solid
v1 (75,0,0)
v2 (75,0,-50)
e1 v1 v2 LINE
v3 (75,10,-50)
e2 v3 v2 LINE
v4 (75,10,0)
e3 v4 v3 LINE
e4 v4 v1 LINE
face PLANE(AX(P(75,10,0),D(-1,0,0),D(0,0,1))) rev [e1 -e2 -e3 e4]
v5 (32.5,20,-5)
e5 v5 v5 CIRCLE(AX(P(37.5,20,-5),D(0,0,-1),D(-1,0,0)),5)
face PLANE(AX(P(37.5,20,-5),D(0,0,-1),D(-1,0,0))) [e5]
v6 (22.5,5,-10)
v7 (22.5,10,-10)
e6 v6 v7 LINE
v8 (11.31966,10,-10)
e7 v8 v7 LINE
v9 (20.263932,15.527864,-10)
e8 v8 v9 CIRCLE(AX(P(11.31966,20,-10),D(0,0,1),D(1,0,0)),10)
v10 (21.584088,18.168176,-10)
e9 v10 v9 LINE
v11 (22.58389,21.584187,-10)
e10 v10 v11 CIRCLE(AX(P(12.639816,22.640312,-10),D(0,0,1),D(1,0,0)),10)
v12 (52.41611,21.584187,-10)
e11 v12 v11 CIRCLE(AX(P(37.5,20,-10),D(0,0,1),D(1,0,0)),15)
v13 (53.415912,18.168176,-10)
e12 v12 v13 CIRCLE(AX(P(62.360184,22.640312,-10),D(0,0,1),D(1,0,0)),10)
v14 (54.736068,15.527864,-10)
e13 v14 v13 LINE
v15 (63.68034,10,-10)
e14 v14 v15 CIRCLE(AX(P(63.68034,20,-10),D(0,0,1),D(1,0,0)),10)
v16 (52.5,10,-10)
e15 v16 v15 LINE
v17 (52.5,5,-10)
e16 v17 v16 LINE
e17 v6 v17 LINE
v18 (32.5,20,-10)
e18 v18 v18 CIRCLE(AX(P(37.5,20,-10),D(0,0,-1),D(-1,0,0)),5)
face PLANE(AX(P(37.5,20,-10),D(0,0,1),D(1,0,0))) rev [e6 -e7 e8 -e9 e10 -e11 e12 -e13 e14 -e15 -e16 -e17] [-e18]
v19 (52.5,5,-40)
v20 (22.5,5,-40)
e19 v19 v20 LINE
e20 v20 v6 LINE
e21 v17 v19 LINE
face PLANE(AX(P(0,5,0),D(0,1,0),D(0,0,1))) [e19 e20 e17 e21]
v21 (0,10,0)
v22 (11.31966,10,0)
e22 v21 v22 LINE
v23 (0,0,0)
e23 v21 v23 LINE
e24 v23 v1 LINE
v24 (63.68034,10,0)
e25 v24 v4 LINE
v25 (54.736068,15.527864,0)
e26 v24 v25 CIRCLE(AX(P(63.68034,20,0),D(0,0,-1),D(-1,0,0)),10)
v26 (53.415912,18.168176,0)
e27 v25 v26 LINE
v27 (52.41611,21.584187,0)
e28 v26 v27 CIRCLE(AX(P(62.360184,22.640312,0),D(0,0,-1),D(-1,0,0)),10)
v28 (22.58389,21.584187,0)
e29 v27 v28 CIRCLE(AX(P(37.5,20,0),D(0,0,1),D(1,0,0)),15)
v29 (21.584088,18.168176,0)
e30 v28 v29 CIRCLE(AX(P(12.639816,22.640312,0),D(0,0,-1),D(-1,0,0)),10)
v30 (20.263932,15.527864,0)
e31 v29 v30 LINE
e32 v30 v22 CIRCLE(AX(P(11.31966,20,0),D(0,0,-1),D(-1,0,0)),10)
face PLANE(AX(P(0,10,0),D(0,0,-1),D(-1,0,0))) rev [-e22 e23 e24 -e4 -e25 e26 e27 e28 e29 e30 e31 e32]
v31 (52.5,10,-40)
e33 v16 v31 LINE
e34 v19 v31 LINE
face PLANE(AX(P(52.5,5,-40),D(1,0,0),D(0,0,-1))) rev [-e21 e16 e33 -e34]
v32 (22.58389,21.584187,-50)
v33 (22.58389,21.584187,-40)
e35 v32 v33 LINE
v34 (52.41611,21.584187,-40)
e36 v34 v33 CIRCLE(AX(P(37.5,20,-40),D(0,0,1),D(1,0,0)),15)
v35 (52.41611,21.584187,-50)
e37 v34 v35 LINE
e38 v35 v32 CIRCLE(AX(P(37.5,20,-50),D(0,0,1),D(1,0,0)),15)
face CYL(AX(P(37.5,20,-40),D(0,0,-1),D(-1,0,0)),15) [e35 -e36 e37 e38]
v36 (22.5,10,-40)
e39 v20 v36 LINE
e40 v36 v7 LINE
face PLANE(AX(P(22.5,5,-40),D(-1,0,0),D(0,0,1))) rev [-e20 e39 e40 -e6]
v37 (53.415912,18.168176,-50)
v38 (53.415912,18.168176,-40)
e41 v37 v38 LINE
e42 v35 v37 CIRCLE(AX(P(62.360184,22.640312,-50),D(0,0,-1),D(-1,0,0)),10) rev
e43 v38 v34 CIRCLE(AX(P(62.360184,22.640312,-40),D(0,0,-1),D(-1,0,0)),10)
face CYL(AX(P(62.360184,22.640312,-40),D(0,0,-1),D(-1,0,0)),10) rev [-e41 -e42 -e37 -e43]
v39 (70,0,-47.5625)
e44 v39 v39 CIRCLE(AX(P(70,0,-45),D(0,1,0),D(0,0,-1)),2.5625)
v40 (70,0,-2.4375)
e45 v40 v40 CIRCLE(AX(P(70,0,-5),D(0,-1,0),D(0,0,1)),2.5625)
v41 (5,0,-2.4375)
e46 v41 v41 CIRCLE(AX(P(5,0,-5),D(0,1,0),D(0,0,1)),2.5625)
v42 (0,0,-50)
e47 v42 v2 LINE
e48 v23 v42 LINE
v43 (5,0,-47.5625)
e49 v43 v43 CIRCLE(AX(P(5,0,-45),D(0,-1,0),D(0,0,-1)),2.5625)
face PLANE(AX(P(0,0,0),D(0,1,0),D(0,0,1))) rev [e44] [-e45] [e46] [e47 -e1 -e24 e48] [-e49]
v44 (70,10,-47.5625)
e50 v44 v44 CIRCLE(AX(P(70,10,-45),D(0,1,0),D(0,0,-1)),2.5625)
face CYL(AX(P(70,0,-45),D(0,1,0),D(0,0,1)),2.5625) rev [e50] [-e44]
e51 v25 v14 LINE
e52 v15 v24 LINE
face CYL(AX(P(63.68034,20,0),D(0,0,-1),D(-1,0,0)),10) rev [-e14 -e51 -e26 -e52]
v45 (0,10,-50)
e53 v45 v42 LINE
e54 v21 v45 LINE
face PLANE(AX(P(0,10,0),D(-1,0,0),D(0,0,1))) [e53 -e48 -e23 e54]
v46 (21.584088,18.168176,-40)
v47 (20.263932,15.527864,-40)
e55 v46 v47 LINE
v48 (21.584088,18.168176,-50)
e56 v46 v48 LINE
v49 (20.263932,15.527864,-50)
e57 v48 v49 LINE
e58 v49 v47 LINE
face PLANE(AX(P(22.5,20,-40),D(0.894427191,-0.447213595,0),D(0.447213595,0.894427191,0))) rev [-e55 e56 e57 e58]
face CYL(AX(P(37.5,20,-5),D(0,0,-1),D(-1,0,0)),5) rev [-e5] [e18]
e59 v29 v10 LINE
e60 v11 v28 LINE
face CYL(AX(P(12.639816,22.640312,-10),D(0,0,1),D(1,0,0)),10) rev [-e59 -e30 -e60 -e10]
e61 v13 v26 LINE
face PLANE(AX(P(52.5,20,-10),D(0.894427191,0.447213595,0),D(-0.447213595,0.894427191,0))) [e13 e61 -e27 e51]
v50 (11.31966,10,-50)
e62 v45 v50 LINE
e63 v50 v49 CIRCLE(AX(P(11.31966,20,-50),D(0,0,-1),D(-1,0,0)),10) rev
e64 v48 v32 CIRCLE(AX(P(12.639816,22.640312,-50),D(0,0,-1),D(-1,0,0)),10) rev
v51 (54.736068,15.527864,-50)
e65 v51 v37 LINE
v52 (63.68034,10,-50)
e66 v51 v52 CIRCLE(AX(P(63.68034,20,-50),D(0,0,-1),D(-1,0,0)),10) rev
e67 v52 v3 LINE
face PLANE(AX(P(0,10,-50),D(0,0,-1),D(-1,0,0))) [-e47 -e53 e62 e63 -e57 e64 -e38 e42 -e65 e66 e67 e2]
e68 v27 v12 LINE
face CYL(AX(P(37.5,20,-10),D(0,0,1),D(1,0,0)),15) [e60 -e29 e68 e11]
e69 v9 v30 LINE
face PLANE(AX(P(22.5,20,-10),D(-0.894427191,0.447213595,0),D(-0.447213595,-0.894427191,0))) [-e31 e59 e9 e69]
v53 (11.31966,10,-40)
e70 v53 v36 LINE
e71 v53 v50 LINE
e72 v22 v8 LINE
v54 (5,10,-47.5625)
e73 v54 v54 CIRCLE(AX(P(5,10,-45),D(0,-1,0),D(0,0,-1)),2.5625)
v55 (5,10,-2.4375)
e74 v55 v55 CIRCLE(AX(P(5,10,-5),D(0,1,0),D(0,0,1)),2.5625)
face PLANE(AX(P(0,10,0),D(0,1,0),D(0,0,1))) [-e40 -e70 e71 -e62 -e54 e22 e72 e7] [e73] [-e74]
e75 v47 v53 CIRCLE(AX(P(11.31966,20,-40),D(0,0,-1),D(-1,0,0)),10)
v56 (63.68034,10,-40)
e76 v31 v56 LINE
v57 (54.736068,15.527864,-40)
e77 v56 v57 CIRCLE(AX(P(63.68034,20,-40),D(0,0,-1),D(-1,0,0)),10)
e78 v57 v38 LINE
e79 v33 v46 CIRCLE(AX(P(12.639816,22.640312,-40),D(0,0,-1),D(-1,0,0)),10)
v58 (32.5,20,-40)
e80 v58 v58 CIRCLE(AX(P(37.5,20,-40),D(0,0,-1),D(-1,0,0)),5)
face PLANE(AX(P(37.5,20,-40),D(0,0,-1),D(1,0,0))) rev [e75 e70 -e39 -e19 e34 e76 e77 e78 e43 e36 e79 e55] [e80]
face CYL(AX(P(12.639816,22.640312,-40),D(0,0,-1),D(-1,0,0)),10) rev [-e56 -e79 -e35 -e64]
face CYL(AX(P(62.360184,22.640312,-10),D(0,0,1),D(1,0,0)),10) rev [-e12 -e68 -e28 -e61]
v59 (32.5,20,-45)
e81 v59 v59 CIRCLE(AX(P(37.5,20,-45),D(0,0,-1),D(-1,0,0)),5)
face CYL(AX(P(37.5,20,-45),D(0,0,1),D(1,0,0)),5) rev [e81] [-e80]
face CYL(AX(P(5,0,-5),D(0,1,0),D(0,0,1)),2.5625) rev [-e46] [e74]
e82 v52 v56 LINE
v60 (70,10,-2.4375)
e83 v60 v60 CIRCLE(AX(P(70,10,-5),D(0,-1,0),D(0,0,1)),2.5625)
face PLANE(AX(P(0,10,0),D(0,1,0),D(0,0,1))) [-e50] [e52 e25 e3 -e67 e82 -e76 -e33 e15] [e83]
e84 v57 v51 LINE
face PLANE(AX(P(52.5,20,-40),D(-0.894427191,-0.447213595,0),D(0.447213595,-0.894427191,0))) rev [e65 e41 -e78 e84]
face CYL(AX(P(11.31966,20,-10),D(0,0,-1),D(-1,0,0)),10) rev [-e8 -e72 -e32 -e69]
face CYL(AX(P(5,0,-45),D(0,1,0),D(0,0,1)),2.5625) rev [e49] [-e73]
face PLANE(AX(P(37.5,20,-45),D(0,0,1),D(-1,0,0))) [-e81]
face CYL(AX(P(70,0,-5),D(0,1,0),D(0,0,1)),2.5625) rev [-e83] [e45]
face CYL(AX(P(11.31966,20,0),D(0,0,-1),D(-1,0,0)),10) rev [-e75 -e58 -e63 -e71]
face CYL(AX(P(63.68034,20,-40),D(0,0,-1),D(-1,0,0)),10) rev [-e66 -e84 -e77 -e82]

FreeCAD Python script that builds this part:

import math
import FreeCAD as App
import Part
import Sketcher
Q = App.Units.Quantity


def edges_at(feature, points):
    """Names of the edges that pass closest to the given points."""
    edges = feature.Shape.Edges
    near = lambda p: min(range(len(edges)), key=lambda i: edges[i].distToShape(Part.Vertex(*p))[0])
    return sorted({f"Edge{near(p) + 1}" for p in points})


def add_polygon(sketch, points):
    """Adds a closed chain of lines whose ends are joined by coincident constraints."""
    first, n = sketch.GeometryCount, len(points)
    for a, b in zip(points, points[1:] + points[:1]):
        sketch.addGeometry(Part.LineSegment(App.Vector(*a, 0), App.Vector(*b, 0)), False)
    for i in range(n):
        sketch.addConstraint(Sketcher.Constraint("Coincident", first + i, 2, first + (i + 1) % n, 1))

doc = App.newDocument("Part")
body = doc.addObject("PartDesign::Body", "Body")

# Sketch on XZ plane
sketch1 = body.newObject("Sketcher::SketchObject", "Sketch")
sketch1.AttachmentSupport = (doc.getObject("XZ_Plane"), [""])
sketch1.MapMode = "FlatFace"
add_polygon(sketch1, [(0, -50), (0, 0), (75, 0), (75, -50)])  # lines 0-3
sketch1.addConstraint(Sketcher.Constraint("Vertical", 0))
sketch1.addConstraint(Sketcher.Constraint("Horizontal", 1))
sketch1.addConstraint(Sketcher.Constraint("Vertical", 2))
sketch1.addConstraint(Sketcher.Constraint("Horizontal", 3))
sketch1.addConstraint(Sketcher.Constraint("Coincident", 0, 2, -1, 1))
sketch1.addConstraint(Sketcher.Constraint("DistanceX", 1, 1, 1, 2, Q("75 mm")))
sketch1.addConstraint(Sketcher.Constraint("DistanceY", 0, 1, 0, 2, Q("50 mm")))
pad1 = body.newObject("PartDesign::Pad", "Pad")
pad1.Profile = sketch1
pad1.Length = 10
pad1.Reversed = True

# Sketch on XY plane
sketch2 = body.newObject("Sketcher::SketchObject", "Sketch001")
sketch2.AttachmentSupport = (doc.getObject("XY_Plane"), [""])
sketch2.MapMode = "FlatFace"
sketch2.addGeometry(Part.LineSegment(App.Vector(58, 10, 0), App.Vector(52, 20, 0)), False)
sketch2.addGeometry(Part.ArcOfCircle(Part.Circle(App.Vector(38, 20, 0), App.Vector(0, 0, 1), 15), math.radians(0), math.radians(180)), False)
sketch2.addGeometry(Part.LineSegment(App.Vector(22, 20, 0), App.Vector(18, 10, 0)), False)
sketch2.addGeometry(Part.LineSegment(App.Vector(18, 10, 0), App.Vector(58, 10, 0)), False)
sketch2.addConstraint(Sketcher.Constraint("Coincident", 0, 2, 1, 1))
sketch2.addConstraint(Sketcher.Constraint("Coincident", 1, 2, 2, 1))
sketch2.addConstraint(Sketcher.Constraint("Coincident", 2, 2, 3, 1))
sketch2.addConstraint(Sketcher.Constraint("Coincident", 3, 2, 0, 1))
sketch2.addConstraint(Sketcher.Constraint("Horizontal", 3))
sketch2.addConstraint(Sketcher.Constraint("Horizontal", 1, 3, 0, 2))
sketch2.addConstraint(Sketcher.Constraint("Horizontal", 0, 2, 1, 2))
sketch2.addConstraint(Sketcher.Constraint("Equal", 0, 2))
sketch2.addConstraint(Sketcher.Constraint("Radius", 1, Q("15 mm")))
sketch2.addConstraint(Sketcher.Constraint("DistanceX", 3, 1, 3, 2, Q("40 mm")))
sketch2.addConstraint(Sketcher.Constraint("DistanceY", -1, 1, 1, 3, Q("20 mm")))
sketch2.addConstraint(Sketcher.Constraint("DistanceY", -1, 1, 2, 2, Q("10 mm")))
sketch2.addConstraint(Sketcher.Constraint("DistanceX", -1, 1, 1, 3, Q("37.5 mm")))
pad2 = body.newObject("PartDesign::Pad", "Pad001")
pad2.Profile = sketch2
pad2.Length = 10
pad2.Reversed = True
doc.recompute()

fillet = body.newObject("PartDesign::Fillet", "Fillet")
fillet.Base = (pad2, edges_at(pad2, [
    (22.5, 20, -5),
    (52.5, 20, -5),
    (57.5, 10, -5),
    (17.5, 10, -5),
]))
fillet.Radius = 10

# Sketch on XY plane
sketch3 = body.newObject("Sketcher::SketchObject", "Sketch002")
sketch3.AttachmentSupport = (doc.getObject("XY_Plane"), [""])
sketch3.MapMode = "FlatFace"
sketch3.AttachmentOffset = App.Placement(App.Vector(0, 0, -10), App.Rotation())
sketch3.addGeometry(Part.Circle(App.Vector(38, 20, 0), App.Vector(0, 0, 1), 5), False)
sketch3.addConstraint(Sketcher.Constraint("Diameter", 0, Q("10 mm")))
sketch3.addConstraint(Sketcher.Constraint("DistanceY", -1, 1, 0, 3, Q("20 mm")))
sketch3.addConstraint(Sketcher.Constraint("DistanceX", -1, 1, 0, 3, Q("37.5 mm")))
pocket1 = body.newObject("PartDesign::Pocket", "Pocket")
pocket1.Profile = sketch3
pocket1.Length = 5
pocket1.Reversed = True
doc.recompute()

datumplane = body.newObject("PartDesign::Plane", "DatumPlane")
datumplane.AttachmentSupport = (doc.getObject("XY_Plane"), [""])
datumplane.MapMode = "FlatFace"
datumplane.AttachmentOffset = App.Placement(App.Vector(0, 0, -25), App.Rotation())
mirrored = body.newObject("PartDesign::Mirrored", "Mirrored")
mirrored.Originals = [pad2, pocket1]
mirrored.MirrorPlane = (datumplane, [""])
body.Tip = mirrored
doc.recompute()

fillet2 = body.newObject("PartDesign::Fillet", "Fillet001")
fillet2.Base = (mirrored, edges_at(mirrored, [
    (22.5, 20, -45),
    (52.5, 20, -45),
    (57.5, 10, -45),
    (17.5, 10, -45),
]))
fillet2.Radius = 10

# Sketch on XZ plane
sketch4 = body.newObject("Sketcher::SketchObject", "Sketch003")
sketch4.AttachmentSupport = (doc.getObject("XZ_Plane"), [""])
sketch4.MapMode = "FlatFace"
sketch4.AttachmentOffset = App.Placement(App.Vector(0, 0, -10), App.Rotation())
sketch4.addGeometry(Part.Circle(App.Vector(5, -5, 0), App.Vector(0, 0, 1), 2.6), False)
sketch4.addConstraint(Sketcher.Constraint("Diameter", 0, Q("5.125 mm")))
sketch4.addConstraint(Sketcher.Constraint("DistanceX", -1, 1, 0, 3, Q("5 mm")))
sketch4.addConstraint(Sketcher.Constraint("DistanceY", 0, 3, -1, 1, Q("5 mm")))
pocket2 = body.newObject("PartDesign::Pocket", "Pocket001")
pocket2.Profile = sketch4
pocket2.Type = "ThroughAll"
pocket2.Reversed = True
doc.recompute()

datumplane2 = body.newObject("PartDesign::Plane", "DatumPlane001")
datumplane2.AttachmentSupport = (doc.getObject("XY_Plane"), [""])
datumplane2.MapMode = "FlatFace"
datumplane2.AttachmentOffset = App.Placement(App.Vector(0, 0, -25), App.Rotation())
mirrored2 = body.newObject("PartDesign::Mirrored", "Mirrored001")
mirrored2.Originals = [pocket2]
mirrored2.MirrorPlane = (datumplane2, [""])
body.Tip = mirrored2
doc.recompute()

datumplane3 = body.newObject("PartDesign::Plane", "DatumPlane002")
datumplane3.AttachmentSupport = (doc.getObject("YZ_Plane"), [""])
datumplane3.MapMode = "FlatFace"
datumplane3.AttachmentOffset = App.Placement(App.Vector(0, 0, 37.5), App.Rotation())
mirrored3 = body.newObject("PartDesign::Mirrored", "Mirrored002")
mirrored3.Originals = [pocket2]
mirrored3.MirrorPlane = (datumplane3, [""])
body.Tip = mirrored3

# Sketch on XZ plane
sketch5 = body.newObject("Sketcher::SketchObject", "Sketch004")
sketch5.AttachmentSupport = (doc.getObject("XZ_Plane"), [""])
sketch5.MapMode = "FlatFace"
sketch5.AttachmentOffset = App.Placement(App.Vector(0, 0, -10), App.Rotation())
sketch5.addGeometry(Part.Circle(App.Vector(70, -45, 0), App.Vector(0, 0, 1), 2.6), False)
sketch5.addConstraint(Sketcher.Constraint("Diameter", 0, Q("5.125 mm")))
sketch5.addConstraint(Sketcher.Constraint("DistanceX", -1, 1, 0, 3, Q("70 mm")))
sketch5.addConstraint(Sketcher.Constraint("DistanceY", 0, 3, -1, 1, Q("45 mm")))
pocket3 = body.newObject("PartDesign::Pocket", "Pocket002")
pocket3.Profile = sketch5
pocket3.Type = "ThroughAll"
pocket3.Reversed = True

# Sketch on XZ plane
sketch6 = body.newObject("Sketcher::SketchObject", "Sketch005")
sketch6.AttachmentSupport = (doc.getObject("XZ_Plane"), [""])
sketch6.MapMode = "FlatFace"
sketch6.AttachmentOffset = App.Placement(App.Vector(0, 0, -10), App.Rotation())
add_polygon(sketch6, [(22, -40), (22, -10), (52, -10), (52, -40)])  # lines 0-3
sketch6.addConstraint(Sketcher.Constraint("Vertical", 0))
sketch6.addConstraint(Sketcher.Constraint("Horizontal", 1))
sketch6.addConstraint(Sketcher.Constraint("Vertical", 2))
sketch6.addConstraint(Sketcher.Constraint("Horizontal", 3))
sketch6.addConstraint(Sketcher.Constraint("Equal", 3, 0))
sketch6.addConstraint(Sketcher.Constraint("DistanceX", 1, 1, 1, 2, Q("30 mm")))
sketch6.addConstraint(Sketcher.Constraint("DistanceY", 0, 2, -1, 1, Q("10 mm")))
sketch6.addConstraint(Sketcher.Constraint("DistanceX", -1, 1, 0, 2, Q("22.5 mm")))
pocket4 = body.newObject("PartDesign::Pocket", "Pocket003")
pocket4.Profile = sketch6
pocket4.Length = 5
pocket4.Reversed = True

doc.recompute()
